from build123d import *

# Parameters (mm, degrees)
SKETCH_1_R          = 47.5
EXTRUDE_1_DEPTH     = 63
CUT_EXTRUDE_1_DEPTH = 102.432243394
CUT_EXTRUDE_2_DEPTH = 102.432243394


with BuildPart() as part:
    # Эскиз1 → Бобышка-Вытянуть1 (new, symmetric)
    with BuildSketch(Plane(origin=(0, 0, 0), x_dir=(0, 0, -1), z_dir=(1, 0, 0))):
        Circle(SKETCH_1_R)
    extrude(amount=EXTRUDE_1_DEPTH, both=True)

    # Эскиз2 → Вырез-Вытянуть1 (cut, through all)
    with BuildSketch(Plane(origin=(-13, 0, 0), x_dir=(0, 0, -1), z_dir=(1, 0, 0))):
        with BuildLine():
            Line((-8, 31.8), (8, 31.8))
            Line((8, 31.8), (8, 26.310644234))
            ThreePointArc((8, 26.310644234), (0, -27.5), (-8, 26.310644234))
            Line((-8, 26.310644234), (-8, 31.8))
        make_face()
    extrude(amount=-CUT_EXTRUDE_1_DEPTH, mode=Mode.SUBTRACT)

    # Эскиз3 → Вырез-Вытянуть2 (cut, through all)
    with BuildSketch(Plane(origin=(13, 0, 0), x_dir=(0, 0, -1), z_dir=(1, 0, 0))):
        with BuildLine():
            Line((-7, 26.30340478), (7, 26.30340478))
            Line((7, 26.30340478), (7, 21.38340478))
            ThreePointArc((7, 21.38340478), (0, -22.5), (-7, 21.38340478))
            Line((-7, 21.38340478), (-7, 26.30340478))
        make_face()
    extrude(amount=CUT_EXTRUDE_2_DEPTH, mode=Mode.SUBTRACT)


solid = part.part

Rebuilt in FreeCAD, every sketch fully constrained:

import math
import FreeCAD as App
import Part
import Sketcher
from FreeCAD import Vector

doc = App.newDocument("Part")
params = doc.addObject("Spreadsheet::Sheet", "Params")
for row, (alias, value) in enumerate([
    ("sketch1_diameter", "95 mm"),
    ("pad1_length", "126 mm"),
    ("sketch2_radius", "27.5 mm"),
    ("sketch2_height", "16 mm"),
    ("sketch3_radius", "22.5 mm"),
    ("sketch3_height", "14 mm"),
    ("sketch3_width", "4.92 mm"),
], start=1):
    params.set(f"A{row}", alias)
    params.set(f"B{row}", "=" + value)
    params.setAlias(f"B{row}", alias)

body = doc.addObject("PartDesign::Body", "Body")

# Sketch on YZ plane
sketch1 = body.newObject("Sketcher::SketchObject", "Sketch")
sketch1.AttachmentSupport = (doc.getObject("YZ_Plane"), [""])
sketch1.MapMode = "FlatFace"
sketch1.addGeometry(Part.Circle(Vector(0, 0, 0), Vector(0, 0, 1), 48), False)
sketch1.addConstraint([
    Sketcher.Constraint("Coincident", 0, 3, -1, 1),
    Sketcher.Constraint("Diameter", 0, 95.0),
])
sketch1.setExpression("Constraints[1]", "Params.sketch1_diameter")
pad1 = body.newObject("PartDesign::Pad", "Pad")
pad1.Profile = sketch1
pad1.setExpression("Length", "Params.pad1_length")
pad1.Midplane = True

# Sketch on YZ plane
sketch2 = body.newObject("Sketcher::SketchObject", "Sketch001")
sketch2.AttachmentSupport = (doc.getObject("YZ_Plane"), [""])
sketch2.MapMode = "FlatFace"
sketch2.AttachmentOffset = App.Placement(Vector(0, 0, -13), App.Rotation())
sketch2.addGeometry([
    Part.LineSegment(Vector(32, -8, 0), Vector(32, 8, 0)),
    Part.LineSegment(Vector(32, 8, 0), Vector(26, 8, 0)),
    Part.ArcOfCircle(Part.Circle(Vector(0, 0, 0), Vector(0, 0, 1), 28), math.radians(17), math.radians(343)),
    Part.LineSegment(Vector(26, -8, 0), Vector(32, -8, 0)),
], False)
sketch2.addConstraint([
    Sketcher.Constraint("Coincident", 0, 2, 1, 1),
    Sketcher.Constraint("Coincident", 1, 2, 2, 1),
    Sketcher.Constraint("Coincident", 2, 2, 3, 1),
    Sketcher.Constraint("Coincident", 3, 2, 0, 1),
    Sketcher.Constraint("Vertical", 0),
    Sketcher.Constraint("Horizontal", 1),
    Sketcher.Constraint("Horizontal", 3),
    Sketcher.Constraint("Coincident", 2, 3, -1, 1),
    Sketcher.Constraint("Vertical", 1, 2, 2, 2),
    Sketcher.Constraint("Radius", 2, 27.5),
    Sketcher.Constraint("DistanceY", 0, 1, 0, 2, 16.0),
    Sketcher.Constraint("DistanceX", -1, 1, 0, 2, 31.8),
])
sketch2.setExpression("Constraints[9]", "Params.sketch2_radius")
sketch2.setExpression("Constraints[10]", "Params.sketch2_height")
pocket1 = body.newObject("PartDesign::Pocket", "Pocket")
pocket1.Profile = sketch2
pocket1.Type = "ThroughAll"

# Sketch on YZ plane
sketch3 = body.newObject("Sketcher::SketchObject", "Sketch002")
sketch3.AttachmentSupport = (doc.getObject("YZ_Plane"), [""])
sketch3.MapMode = "FlatFace"
sketch3.AttachmentOffset = App.Placement(Vector(0, 0, 13), App.Rotation())
sketch3.addGeometry([
    Part.LineSegment(Vector(26.3, -7, 0), Vector(26.3, 7, 0)),
    Part.LineSegment(Vector(26.3, 7, 0), Vector(21.4, 7, 0)),
    Part.ArcOfCircle(Part.Circle(Vector(0, 0, 0), Vector(0, 0, 1), 22.5), math.radians(18), math.radians(342)),
    Part.LineSegment(Vector(21.4, -7, 0), Vector(26.3, -7, 0)),
], False)
sketch3.addConstraint([
    Sketcher.Constraint("Coincident", 0, 2, 1, 1),
    Sketcher.Constraint("Coincident", 1, 2, 2, 1),
    Sketcher.Constraint("Coincident", 2, 2, 3, 1),
    Sketcher.Constraint("Coincident", 3, 2, 0, 1),
    Sketcher.Constraint("Vertical", 0),
    Sketcher.Constraint("Horizontal", 1),
    Sketcher.Constraint("Horizontal", 3),
    Sketcher.Constraint("Coincident", 2, 3, -1, 1),
    Sketcher.Constraint("Vertical", 1, 2, 2, 2),
    Sketcher.Constraint("Radius", 2, 22.5),
    Sketcher.Constraint("DistanceY", 0, 1, 0, 2, 14.0),
    Sketcher.Constraint("DistanceX", 1, 2, 1, 1, 4.92),
])
sketch3.setExpression("Constraints[9]", "Params.sketch3_radius")
sketch3.setExpression("Constraints[10]", "Params.sketch3_height")
sketch3.setExpression("Constraints[11]", "Params.sketch3_width")
pocket2 = body.newObject("PartDesign::Pocket", "Pocket001")
pocket2.Profile = sketch3
pocket2.Type = "ThroughAll"
pocket2.Reversed = True

doc.recompute()
